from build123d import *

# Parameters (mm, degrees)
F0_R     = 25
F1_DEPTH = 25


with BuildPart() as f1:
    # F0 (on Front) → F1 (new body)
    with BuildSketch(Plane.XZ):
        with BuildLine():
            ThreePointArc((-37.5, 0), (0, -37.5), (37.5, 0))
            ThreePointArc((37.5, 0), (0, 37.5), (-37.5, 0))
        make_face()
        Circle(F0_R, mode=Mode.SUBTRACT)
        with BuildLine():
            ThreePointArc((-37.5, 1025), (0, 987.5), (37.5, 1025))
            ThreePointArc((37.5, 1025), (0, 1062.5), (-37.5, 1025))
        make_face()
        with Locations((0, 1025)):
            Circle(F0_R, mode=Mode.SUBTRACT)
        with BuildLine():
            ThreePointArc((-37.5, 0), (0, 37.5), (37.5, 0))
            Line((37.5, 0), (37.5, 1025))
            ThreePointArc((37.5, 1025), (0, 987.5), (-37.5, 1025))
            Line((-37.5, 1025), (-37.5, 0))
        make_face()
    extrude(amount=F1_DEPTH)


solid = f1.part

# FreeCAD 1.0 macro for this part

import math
import FreeCAD as App
import Part
import Sketcher
from FreeCAD import Vector

doc = App.newDocument("Part")
params = doc.addObject("Spreadsheet::Sheet", "Params")
for row, (alias, value) in enumerate([
    ("sketch1_diameter", "50 mm"),
    ("sketch1_radius", "37.5 mm"),
    ("sketch1_height", "1025 mm"),
    ("pad1_length", "25 mm"),
], start=1):
    params.set(f"A{row}", alias)
    params.set(f"B{row}", "=" + value)
    params.setAlias(f"B{row}", alias)

body = doc.addObject("PartDesign::Body", "Body")

# Sketch on XZ plane
sketch1 = body.newObject("Sketcher::SketchObject", "Sketch")
sketch1.AttachmentSupport = (doc.getObject("XZ_Plane"), [""])
sketch1.MapMode = "FlatFace"
sketch1.addGeometry([
    Part.ArcOfCircle(Part.Circle(Vector(0, 0, 0), Vector(0, 0, 1), 38), math.radians(180), math.radians(360)),  # 0
    Part.LineSegment(Vector(38, 0, 0), Vector(38, 1025, 0)),  # 1
    Part.ArcOfCircle(Part.Circle(Vector(0, 1025, 0), Vector(0, 0, 1), 38), math.radians(0), math.radians(180)),  # 2
    Part.LineSegment(Vector(-38, 1025, 0), Vector(-38, 0, 0)),  # 3
    Part.Circle(Vector(0, 0, 0), Vector(0, 0, 1), 25),  # 4
    Part.Circle(Vector(0, 1025, 0), Vector(0, 0, 1), 25),  # 5
], False)
sketch1.addConstraint([
    Sketcher.Constraint("Tangent", 0, 2, 1, 1),
    Sketcher.Constraint("Tangent", 1, 2, 2, 1),
    Sketcher.Constraint("Tangent", 2, 2, 3, 1),
    Sketcher.Constraint("Tangent", 3, 2, 0, 1),
    Sketcher.Constraint("Vertical", 1),
    Sketcher.Constraint("Vertical", 3),
    Sketcher.Constraint("Coincident", 0, 3, -1, 1),
    Sketcher.Constraint("Coincident", 4, 3, -1, 1),
    Sketcher.Constraint("Coincident", 5, 3, 2, 3),
    Sketcher.Constraint("Equal", 4, 5),
    Sketcher.Constraint("Diameter", 4, 50.0),
    Sketcher.Constraint("Radius", 0, 37.5),
    Sketcher.Constraint("DistanceY", 1, 1, 1, 2, 1025.0),
])
sketch1.setExpression("Constraints[10]", "Params.sketch1_diameter")
sketch1.setExpression("Constraints[11]", "Params.sketch1_radius")
sketch1.setExpression("Constraints[12]", "Params.sketch1_height")
pad1 = body.newObject("PartDesign::Pad", "Pad")
pad1.Profile = sketch1
pad1.setExpression("Length", "Params.pad1_length")

doc.recompute()
